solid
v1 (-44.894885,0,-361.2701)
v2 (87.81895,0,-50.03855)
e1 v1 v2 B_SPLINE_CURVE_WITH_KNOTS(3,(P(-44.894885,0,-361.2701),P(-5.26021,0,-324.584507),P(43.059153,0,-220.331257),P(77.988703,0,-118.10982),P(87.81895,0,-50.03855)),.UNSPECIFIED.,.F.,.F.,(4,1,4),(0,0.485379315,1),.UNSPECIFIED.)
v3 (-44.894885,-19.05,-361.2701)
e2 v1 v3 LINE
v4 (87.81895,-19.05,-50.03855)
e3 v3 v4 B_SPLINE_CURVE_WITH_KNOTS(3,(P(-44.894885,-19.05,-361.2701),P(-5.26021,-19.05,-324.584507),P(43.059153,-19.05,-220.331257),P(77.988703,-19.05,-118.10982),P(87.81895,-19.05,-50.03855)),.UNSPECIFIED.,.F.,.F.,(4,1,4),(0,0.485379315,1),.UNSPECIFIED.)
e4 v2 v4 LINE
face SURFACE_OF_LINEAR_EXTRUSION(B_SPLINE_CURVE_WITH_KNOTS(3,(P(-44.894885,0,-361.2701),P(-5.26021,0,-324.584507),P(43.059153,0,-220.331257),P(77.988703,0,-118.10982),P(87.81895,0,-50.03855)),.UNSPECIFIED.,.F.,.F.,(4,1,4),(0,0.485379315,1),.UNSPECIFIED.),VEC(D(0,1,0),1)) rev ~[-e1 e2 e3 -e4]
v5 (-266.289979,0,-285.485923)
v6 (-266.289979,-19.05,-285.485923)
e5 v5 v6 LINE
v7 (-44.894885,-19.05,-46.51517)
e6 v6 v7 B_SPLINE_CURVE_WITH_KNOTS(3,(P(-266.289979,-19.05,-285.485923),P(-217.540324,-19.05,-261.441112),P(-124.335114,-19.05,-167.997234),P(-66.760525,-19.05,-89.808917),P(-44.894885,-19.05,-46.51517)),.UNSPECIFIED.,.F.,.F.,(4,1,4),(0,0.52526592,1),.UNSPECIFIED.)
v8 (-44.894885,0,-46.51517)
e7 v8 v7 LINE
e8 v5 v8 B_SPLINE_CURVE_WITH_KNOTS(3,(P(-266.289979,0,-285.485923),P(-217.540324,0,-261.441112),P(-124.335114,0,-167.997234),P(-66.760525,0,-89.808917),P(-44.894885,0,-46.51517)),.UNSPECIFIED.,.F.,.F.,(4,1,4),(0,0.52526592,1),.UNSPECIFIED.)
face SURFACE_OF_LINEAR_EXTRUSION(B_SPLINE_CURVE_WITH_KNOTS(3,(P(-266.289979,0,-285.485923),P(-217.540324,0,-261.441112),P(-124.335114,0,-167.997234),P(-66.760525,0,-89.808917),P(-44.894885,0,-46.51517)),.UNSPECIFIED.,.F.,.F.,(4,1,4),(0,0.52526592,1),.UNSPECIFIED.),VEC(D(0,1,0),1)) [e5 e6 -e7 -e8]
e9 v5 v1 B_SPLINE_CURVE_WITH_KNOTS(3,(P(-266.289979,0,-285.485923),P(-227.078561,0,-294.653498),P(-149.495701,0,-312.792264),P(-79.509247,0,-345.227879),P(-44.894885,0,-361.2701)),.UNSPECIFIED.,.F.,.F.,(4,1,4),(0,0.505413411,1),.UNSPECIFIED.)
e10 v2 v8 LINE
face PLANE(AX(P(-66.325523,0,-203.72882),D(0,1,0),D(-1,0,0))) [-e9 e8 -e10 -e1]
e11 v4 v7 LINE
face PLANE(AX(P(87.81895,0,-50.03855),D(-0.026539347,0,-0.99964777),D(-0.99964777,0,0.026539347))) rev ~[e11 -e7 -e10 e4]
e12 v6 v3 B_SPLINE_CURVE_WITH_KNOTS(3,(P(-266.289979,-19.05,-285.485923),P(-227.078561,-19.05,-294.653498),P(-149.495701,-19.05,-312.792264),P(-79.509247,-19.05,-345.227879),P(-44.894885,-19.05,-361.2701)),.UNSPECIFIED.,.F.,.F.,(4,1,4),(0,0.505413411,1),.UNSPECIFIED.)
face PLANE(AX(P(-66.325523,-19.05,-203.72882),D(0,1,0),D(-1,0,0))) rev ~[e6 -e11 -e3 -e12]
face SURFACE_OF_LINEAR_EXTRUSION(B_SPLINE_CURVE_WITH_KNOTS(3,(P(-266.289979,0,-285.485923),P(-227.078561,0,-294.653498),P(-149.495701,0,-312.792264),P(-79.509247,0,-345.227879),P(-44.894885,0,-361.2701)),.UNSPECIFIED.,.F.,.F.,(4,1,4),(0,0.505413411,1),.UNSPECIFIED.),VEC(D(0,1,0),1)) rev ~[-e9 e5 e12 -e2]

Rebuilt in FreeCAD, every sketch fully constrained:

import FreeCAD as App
import Part
import Sketcher

V = App.Vector
Q = App.Units.Quantity

doc = App.newDocument("Part")
body = doc.addObject("PartDesign::Body", "Body")

sketch1 = body.newObject("Sketcher::SketchObject", "Sketch")
sketch1.AttachmentSupport = (doc.getObject("XZ_Plane"), [""])
sketch1.MapMode = "FlatFace"
sketch1.addGeometry([
    Part.BSplineCurve([V(-266.289979, -285.485923, 0), V(-217.540324, -261.441112, 0), V(-124.335114, -167.997234, 0), V(-66.760525, -89.808917, 0), V(-44.894885, -46.51517, 0)], [4, 1, 4], [0, 0.52526592, 1], False, 3, [1, 1, 1, 1, 1], False),
    Part.BSplineCurve([V(-266.289979, -285.485923, 0), V(-227.078561, -294.653498, 0), V(-149.495701, -312.792264, 0), V(-79.509247, -345.227879, 0), V(-44.894885, -361.2701, 0)], [4, 1, 4], [0, 0.505413411, 1], False, 3, [1, 1, 1, 1, 1], False),
    Part.BSplineCurve([V(-44.894885, -361.2701, 0), V(-5.26021, -324.584507, 0), V(43.059153, -220.331257, 0), V(77.988703, -118.10982, 0), V(87.81895, -50.03855, 0)], [4, 1, 4], [0, 0.485379315, 1], False, 3, [1, 1, 1, 1, 1], False),
    Part.LineSegment(V(87.81895, -50.03855, 0), V(-44.894885, -46.51517, 0)),
], False)
sketch1.addConstraint([
    Sketcher.Constraint("Block", 0),
    Sketcher.Constraint("Block", 1),
    Sketcher.Constraint("Block", 2),
    Sketcher.Constraint("Coincident", 2, 2, 3, 1),
    Sketcher.Constraint("Coincident", 3, 2, 0, 2),
])
pad1 = body.newObject("PartDesign::Pad", "Pad")
pad1.Profile = sketch1
pad1.Length = Q("0.75 in")

doc.recompute()
